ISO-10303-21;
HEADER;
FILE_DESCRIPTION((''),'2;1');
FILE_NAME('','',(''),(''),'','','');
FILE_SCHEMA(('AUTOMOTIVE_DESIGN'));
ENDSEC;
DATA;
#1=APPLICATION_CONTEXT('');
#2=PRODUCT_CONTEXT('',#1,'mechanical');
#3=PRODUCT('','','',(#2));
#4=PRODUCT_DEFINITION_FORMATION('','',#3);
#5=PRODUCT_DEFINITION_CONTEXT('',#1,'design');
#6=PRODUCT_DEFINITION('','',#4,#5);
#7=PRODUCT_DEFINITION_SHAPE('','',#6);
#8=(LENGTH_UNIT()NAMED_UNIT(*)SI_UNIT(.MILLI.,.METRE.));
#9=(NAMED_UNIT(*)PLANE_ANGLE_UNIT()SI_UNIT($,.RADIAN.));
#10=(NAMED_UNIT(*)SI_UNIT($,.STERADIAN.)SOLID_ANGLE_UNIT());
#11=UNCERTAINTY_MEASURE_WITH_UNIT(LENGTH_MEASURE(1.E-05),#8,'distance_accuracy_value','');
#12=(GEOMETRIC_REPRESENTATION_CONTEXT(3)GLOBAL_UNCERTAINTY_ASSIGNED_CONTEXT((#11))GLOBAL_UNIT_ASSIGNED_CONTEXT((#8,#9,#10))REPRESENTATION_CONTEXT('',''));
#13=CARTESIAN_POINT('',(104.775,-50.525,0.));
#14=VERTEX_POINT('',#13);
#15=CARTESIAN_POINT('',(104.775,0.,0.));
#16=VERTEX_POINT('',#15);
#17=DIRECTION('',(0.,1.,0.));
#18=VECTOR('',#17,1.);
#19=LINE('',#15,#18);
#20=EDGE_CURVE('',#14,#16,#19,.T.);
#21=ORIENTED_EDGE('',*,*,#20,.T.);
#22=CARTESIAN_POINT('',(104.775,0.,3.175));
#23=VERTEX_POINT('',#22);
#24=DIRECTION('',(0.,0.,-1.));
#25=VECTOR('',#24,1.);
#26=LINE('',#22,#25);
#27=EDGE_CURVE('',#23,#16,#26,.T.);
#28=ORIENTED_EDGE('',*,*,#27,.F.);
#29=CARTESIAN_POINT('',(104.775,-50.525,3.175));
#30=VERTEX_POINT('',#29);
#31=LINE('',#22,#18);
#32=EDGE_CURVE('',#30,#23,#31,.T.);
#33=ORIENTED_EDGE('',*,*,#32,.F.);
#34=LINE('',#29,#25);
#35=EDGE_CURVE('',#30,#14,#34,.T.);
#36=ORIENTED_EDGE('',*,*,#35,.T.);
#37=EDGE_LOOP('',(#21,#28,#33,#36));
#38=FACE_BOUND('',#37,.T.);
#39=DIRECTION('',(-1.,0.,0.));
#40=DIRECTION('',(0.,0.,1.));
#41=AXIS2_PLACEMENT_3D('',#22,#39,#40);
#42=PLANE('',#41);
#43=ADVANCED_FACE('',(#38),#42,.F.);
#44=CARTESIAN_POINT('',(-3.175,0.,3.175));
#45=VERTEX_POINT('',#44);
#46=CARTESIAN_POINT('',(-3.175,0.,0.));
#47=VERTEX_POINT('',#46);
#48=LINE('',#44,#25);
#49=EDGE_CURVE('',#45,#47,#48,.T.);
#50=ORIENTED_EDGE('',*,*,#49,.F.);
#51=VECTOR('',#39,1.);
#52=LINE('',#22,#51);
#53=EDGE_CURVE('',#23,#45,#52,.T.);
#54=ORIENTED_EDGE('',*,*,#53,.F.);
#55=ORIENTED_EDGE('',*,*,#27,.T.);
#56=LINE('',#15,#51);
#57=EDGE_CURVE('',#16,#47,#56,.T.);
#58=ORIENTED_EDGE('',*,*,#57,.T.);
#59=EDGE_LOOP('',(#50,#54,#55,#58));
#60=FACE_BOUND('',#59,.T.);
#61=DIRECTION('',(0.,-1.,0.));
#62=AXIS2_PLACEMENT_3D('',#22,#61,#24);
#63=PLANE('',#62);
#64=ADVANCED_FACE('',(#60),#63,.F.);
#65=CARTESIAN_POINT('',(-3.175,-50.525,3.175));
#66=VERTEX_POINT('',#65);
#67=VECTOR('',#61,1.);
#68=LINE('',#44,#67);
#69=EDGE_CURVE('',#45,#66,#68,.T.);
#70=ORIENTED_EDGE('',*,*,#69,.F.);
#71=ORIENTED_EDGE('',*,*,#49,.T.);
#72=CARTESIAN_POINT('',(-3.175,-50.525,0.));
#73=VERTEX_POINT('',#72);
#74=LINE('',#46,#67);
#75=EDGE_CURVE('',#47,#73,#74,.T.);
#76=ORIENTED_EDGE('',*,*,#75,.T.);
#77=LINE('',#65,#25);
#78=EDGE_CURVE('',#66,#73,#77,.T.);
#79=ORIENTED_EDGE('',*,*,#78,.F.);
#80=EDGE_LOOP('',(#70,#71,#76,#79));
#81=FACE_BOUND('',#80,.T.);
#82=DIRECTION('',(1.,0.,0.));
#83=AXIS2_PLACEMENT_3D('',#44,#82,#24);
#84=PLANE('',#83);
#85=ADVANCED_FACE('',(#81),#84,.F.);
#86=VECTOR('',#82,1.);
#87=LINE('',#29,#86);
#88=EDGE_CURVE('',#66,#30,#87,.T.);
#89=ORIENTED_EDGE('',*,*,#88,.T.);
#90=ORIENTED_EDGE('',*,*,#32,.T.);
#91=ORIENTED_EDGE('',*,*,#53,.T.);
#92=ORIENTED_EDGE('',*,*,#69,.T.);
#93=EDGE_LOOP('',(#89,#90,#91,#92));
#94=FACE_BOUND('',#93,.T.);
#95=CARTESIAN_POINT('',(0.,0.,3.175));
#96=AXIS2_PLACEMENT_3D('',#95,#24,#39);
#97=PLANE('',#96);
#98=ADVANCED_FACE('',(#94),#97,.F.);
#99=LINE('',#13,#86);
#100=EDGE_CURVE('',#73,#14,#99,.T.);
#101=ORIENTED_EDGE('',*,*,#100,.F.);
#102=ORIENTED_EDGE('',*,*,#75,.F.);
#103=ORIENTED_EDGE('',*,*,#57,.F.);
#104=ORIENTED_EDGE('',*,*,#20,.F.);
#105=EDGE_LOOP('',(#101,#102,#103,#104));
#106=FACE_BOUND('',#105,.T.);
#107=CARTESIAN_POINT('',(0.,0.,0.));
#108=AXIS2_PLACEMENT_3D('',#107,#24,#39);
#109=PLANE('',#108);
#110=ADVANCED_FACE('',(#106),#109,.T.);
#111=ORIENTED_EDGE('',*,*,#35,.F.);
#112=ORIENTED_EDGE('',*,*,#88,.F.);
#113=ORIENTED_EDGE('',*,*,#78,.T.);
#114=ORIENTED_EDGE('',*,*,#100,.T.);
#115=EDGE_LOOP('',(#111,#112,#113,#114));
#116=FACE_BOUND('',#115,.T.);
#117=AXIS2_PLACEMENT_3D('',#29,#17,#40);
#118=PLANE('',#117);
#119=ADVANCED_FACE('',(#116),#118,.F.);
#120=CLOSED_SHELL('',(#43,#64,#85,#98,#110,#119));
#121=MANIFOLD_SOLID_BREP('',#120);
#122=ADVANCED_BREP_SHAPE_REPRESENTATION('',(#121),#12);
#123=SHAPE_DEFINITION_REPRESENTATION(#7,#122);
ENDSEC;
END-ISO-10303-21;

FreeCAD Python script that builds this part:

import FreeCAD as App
import Part
import Sketcher
Q = App.Units.Quantity


def add_polygon(sketch, points):
    """Adds a closed chain of lines whose ends are joined by coincident constraints."""
    first, n = sketch.GeometryCount, len(points)
    for a, b in zip(points, points[1:] + points[:1]):
        sketch.addGeometry(Part.LineSegment(App.Vector(*a, 0), App.Vector(*b, 0)), False)
    for i in range(n):
        sketch.addConstraint(Sketcher.Constraint("Coincident", first + i, 2, first + (i + 1) % n, 1))

doc = App.newDocument("Part")
params = doc.addObject("Spreadsheet::Sheet", "Params")
for row, (alias, value) in enumerate([
    ("sketch1_width", "4.25 in"),
    ("pad1_length", "0.125 in"),
], start=1):
    params.set(f"A{row}", alias)
    params.set(f"B{row}", "=" + value)
    params.setAlias(f"B{row}", alias)

body = doc.addObject("PartDesign::Body", "Body")

# Sketch on XY plane
sketch1 = body.newObject("Sketcher::SketchObject", "Sketch")
sketch1.AttachmentSupport = (doc.getObject("XY_Plane"), [""])
sketch1.MapMode = "FlatFace"
add_polygon(sketch1, [(-3.175, 0), (-3.175, -50.525), (104.775, -50.525), (104.775, 0)])  # lines 0-3
sketch1.addConstraint(Sketcher.Constraint("Vertical", 0))
sketch1.addConstraint(Sketcher.Constraint("Horizontal", 1))
sketch1.addConstraint(Sketcher.Constraint("Vertical", 2))
sketch1.addConstraint(Sketcher.Constraint("Horizontal", 3))
sketch1.addConstraint(Sketcher.Constraint("PointOnObject", 2, 2, -1))
sketch1.addConstraint(Sketcher.Constraint("DistanceX", 1, 1, 1, 2, Q("4.25 in")))
sketch1.addConstraint(Sketcher.Constraint("DistanceX", 0, 2, -1, 1, Q("0.125 in")))
sketch1.addConstraint(Sketcher.Constraint("DistanceY", 0, 2, 0, 1, Q("50.525 mm")))
sketch1.setExpression("Constraints[9]", "Params.sketch1_width")
pad1 = body.newObject("PartDesign::Pad", "Pad")
pad1.Profile = sketch1
pad1.setExpression("Length", "Params.pad1_length")

doc.recompute()
